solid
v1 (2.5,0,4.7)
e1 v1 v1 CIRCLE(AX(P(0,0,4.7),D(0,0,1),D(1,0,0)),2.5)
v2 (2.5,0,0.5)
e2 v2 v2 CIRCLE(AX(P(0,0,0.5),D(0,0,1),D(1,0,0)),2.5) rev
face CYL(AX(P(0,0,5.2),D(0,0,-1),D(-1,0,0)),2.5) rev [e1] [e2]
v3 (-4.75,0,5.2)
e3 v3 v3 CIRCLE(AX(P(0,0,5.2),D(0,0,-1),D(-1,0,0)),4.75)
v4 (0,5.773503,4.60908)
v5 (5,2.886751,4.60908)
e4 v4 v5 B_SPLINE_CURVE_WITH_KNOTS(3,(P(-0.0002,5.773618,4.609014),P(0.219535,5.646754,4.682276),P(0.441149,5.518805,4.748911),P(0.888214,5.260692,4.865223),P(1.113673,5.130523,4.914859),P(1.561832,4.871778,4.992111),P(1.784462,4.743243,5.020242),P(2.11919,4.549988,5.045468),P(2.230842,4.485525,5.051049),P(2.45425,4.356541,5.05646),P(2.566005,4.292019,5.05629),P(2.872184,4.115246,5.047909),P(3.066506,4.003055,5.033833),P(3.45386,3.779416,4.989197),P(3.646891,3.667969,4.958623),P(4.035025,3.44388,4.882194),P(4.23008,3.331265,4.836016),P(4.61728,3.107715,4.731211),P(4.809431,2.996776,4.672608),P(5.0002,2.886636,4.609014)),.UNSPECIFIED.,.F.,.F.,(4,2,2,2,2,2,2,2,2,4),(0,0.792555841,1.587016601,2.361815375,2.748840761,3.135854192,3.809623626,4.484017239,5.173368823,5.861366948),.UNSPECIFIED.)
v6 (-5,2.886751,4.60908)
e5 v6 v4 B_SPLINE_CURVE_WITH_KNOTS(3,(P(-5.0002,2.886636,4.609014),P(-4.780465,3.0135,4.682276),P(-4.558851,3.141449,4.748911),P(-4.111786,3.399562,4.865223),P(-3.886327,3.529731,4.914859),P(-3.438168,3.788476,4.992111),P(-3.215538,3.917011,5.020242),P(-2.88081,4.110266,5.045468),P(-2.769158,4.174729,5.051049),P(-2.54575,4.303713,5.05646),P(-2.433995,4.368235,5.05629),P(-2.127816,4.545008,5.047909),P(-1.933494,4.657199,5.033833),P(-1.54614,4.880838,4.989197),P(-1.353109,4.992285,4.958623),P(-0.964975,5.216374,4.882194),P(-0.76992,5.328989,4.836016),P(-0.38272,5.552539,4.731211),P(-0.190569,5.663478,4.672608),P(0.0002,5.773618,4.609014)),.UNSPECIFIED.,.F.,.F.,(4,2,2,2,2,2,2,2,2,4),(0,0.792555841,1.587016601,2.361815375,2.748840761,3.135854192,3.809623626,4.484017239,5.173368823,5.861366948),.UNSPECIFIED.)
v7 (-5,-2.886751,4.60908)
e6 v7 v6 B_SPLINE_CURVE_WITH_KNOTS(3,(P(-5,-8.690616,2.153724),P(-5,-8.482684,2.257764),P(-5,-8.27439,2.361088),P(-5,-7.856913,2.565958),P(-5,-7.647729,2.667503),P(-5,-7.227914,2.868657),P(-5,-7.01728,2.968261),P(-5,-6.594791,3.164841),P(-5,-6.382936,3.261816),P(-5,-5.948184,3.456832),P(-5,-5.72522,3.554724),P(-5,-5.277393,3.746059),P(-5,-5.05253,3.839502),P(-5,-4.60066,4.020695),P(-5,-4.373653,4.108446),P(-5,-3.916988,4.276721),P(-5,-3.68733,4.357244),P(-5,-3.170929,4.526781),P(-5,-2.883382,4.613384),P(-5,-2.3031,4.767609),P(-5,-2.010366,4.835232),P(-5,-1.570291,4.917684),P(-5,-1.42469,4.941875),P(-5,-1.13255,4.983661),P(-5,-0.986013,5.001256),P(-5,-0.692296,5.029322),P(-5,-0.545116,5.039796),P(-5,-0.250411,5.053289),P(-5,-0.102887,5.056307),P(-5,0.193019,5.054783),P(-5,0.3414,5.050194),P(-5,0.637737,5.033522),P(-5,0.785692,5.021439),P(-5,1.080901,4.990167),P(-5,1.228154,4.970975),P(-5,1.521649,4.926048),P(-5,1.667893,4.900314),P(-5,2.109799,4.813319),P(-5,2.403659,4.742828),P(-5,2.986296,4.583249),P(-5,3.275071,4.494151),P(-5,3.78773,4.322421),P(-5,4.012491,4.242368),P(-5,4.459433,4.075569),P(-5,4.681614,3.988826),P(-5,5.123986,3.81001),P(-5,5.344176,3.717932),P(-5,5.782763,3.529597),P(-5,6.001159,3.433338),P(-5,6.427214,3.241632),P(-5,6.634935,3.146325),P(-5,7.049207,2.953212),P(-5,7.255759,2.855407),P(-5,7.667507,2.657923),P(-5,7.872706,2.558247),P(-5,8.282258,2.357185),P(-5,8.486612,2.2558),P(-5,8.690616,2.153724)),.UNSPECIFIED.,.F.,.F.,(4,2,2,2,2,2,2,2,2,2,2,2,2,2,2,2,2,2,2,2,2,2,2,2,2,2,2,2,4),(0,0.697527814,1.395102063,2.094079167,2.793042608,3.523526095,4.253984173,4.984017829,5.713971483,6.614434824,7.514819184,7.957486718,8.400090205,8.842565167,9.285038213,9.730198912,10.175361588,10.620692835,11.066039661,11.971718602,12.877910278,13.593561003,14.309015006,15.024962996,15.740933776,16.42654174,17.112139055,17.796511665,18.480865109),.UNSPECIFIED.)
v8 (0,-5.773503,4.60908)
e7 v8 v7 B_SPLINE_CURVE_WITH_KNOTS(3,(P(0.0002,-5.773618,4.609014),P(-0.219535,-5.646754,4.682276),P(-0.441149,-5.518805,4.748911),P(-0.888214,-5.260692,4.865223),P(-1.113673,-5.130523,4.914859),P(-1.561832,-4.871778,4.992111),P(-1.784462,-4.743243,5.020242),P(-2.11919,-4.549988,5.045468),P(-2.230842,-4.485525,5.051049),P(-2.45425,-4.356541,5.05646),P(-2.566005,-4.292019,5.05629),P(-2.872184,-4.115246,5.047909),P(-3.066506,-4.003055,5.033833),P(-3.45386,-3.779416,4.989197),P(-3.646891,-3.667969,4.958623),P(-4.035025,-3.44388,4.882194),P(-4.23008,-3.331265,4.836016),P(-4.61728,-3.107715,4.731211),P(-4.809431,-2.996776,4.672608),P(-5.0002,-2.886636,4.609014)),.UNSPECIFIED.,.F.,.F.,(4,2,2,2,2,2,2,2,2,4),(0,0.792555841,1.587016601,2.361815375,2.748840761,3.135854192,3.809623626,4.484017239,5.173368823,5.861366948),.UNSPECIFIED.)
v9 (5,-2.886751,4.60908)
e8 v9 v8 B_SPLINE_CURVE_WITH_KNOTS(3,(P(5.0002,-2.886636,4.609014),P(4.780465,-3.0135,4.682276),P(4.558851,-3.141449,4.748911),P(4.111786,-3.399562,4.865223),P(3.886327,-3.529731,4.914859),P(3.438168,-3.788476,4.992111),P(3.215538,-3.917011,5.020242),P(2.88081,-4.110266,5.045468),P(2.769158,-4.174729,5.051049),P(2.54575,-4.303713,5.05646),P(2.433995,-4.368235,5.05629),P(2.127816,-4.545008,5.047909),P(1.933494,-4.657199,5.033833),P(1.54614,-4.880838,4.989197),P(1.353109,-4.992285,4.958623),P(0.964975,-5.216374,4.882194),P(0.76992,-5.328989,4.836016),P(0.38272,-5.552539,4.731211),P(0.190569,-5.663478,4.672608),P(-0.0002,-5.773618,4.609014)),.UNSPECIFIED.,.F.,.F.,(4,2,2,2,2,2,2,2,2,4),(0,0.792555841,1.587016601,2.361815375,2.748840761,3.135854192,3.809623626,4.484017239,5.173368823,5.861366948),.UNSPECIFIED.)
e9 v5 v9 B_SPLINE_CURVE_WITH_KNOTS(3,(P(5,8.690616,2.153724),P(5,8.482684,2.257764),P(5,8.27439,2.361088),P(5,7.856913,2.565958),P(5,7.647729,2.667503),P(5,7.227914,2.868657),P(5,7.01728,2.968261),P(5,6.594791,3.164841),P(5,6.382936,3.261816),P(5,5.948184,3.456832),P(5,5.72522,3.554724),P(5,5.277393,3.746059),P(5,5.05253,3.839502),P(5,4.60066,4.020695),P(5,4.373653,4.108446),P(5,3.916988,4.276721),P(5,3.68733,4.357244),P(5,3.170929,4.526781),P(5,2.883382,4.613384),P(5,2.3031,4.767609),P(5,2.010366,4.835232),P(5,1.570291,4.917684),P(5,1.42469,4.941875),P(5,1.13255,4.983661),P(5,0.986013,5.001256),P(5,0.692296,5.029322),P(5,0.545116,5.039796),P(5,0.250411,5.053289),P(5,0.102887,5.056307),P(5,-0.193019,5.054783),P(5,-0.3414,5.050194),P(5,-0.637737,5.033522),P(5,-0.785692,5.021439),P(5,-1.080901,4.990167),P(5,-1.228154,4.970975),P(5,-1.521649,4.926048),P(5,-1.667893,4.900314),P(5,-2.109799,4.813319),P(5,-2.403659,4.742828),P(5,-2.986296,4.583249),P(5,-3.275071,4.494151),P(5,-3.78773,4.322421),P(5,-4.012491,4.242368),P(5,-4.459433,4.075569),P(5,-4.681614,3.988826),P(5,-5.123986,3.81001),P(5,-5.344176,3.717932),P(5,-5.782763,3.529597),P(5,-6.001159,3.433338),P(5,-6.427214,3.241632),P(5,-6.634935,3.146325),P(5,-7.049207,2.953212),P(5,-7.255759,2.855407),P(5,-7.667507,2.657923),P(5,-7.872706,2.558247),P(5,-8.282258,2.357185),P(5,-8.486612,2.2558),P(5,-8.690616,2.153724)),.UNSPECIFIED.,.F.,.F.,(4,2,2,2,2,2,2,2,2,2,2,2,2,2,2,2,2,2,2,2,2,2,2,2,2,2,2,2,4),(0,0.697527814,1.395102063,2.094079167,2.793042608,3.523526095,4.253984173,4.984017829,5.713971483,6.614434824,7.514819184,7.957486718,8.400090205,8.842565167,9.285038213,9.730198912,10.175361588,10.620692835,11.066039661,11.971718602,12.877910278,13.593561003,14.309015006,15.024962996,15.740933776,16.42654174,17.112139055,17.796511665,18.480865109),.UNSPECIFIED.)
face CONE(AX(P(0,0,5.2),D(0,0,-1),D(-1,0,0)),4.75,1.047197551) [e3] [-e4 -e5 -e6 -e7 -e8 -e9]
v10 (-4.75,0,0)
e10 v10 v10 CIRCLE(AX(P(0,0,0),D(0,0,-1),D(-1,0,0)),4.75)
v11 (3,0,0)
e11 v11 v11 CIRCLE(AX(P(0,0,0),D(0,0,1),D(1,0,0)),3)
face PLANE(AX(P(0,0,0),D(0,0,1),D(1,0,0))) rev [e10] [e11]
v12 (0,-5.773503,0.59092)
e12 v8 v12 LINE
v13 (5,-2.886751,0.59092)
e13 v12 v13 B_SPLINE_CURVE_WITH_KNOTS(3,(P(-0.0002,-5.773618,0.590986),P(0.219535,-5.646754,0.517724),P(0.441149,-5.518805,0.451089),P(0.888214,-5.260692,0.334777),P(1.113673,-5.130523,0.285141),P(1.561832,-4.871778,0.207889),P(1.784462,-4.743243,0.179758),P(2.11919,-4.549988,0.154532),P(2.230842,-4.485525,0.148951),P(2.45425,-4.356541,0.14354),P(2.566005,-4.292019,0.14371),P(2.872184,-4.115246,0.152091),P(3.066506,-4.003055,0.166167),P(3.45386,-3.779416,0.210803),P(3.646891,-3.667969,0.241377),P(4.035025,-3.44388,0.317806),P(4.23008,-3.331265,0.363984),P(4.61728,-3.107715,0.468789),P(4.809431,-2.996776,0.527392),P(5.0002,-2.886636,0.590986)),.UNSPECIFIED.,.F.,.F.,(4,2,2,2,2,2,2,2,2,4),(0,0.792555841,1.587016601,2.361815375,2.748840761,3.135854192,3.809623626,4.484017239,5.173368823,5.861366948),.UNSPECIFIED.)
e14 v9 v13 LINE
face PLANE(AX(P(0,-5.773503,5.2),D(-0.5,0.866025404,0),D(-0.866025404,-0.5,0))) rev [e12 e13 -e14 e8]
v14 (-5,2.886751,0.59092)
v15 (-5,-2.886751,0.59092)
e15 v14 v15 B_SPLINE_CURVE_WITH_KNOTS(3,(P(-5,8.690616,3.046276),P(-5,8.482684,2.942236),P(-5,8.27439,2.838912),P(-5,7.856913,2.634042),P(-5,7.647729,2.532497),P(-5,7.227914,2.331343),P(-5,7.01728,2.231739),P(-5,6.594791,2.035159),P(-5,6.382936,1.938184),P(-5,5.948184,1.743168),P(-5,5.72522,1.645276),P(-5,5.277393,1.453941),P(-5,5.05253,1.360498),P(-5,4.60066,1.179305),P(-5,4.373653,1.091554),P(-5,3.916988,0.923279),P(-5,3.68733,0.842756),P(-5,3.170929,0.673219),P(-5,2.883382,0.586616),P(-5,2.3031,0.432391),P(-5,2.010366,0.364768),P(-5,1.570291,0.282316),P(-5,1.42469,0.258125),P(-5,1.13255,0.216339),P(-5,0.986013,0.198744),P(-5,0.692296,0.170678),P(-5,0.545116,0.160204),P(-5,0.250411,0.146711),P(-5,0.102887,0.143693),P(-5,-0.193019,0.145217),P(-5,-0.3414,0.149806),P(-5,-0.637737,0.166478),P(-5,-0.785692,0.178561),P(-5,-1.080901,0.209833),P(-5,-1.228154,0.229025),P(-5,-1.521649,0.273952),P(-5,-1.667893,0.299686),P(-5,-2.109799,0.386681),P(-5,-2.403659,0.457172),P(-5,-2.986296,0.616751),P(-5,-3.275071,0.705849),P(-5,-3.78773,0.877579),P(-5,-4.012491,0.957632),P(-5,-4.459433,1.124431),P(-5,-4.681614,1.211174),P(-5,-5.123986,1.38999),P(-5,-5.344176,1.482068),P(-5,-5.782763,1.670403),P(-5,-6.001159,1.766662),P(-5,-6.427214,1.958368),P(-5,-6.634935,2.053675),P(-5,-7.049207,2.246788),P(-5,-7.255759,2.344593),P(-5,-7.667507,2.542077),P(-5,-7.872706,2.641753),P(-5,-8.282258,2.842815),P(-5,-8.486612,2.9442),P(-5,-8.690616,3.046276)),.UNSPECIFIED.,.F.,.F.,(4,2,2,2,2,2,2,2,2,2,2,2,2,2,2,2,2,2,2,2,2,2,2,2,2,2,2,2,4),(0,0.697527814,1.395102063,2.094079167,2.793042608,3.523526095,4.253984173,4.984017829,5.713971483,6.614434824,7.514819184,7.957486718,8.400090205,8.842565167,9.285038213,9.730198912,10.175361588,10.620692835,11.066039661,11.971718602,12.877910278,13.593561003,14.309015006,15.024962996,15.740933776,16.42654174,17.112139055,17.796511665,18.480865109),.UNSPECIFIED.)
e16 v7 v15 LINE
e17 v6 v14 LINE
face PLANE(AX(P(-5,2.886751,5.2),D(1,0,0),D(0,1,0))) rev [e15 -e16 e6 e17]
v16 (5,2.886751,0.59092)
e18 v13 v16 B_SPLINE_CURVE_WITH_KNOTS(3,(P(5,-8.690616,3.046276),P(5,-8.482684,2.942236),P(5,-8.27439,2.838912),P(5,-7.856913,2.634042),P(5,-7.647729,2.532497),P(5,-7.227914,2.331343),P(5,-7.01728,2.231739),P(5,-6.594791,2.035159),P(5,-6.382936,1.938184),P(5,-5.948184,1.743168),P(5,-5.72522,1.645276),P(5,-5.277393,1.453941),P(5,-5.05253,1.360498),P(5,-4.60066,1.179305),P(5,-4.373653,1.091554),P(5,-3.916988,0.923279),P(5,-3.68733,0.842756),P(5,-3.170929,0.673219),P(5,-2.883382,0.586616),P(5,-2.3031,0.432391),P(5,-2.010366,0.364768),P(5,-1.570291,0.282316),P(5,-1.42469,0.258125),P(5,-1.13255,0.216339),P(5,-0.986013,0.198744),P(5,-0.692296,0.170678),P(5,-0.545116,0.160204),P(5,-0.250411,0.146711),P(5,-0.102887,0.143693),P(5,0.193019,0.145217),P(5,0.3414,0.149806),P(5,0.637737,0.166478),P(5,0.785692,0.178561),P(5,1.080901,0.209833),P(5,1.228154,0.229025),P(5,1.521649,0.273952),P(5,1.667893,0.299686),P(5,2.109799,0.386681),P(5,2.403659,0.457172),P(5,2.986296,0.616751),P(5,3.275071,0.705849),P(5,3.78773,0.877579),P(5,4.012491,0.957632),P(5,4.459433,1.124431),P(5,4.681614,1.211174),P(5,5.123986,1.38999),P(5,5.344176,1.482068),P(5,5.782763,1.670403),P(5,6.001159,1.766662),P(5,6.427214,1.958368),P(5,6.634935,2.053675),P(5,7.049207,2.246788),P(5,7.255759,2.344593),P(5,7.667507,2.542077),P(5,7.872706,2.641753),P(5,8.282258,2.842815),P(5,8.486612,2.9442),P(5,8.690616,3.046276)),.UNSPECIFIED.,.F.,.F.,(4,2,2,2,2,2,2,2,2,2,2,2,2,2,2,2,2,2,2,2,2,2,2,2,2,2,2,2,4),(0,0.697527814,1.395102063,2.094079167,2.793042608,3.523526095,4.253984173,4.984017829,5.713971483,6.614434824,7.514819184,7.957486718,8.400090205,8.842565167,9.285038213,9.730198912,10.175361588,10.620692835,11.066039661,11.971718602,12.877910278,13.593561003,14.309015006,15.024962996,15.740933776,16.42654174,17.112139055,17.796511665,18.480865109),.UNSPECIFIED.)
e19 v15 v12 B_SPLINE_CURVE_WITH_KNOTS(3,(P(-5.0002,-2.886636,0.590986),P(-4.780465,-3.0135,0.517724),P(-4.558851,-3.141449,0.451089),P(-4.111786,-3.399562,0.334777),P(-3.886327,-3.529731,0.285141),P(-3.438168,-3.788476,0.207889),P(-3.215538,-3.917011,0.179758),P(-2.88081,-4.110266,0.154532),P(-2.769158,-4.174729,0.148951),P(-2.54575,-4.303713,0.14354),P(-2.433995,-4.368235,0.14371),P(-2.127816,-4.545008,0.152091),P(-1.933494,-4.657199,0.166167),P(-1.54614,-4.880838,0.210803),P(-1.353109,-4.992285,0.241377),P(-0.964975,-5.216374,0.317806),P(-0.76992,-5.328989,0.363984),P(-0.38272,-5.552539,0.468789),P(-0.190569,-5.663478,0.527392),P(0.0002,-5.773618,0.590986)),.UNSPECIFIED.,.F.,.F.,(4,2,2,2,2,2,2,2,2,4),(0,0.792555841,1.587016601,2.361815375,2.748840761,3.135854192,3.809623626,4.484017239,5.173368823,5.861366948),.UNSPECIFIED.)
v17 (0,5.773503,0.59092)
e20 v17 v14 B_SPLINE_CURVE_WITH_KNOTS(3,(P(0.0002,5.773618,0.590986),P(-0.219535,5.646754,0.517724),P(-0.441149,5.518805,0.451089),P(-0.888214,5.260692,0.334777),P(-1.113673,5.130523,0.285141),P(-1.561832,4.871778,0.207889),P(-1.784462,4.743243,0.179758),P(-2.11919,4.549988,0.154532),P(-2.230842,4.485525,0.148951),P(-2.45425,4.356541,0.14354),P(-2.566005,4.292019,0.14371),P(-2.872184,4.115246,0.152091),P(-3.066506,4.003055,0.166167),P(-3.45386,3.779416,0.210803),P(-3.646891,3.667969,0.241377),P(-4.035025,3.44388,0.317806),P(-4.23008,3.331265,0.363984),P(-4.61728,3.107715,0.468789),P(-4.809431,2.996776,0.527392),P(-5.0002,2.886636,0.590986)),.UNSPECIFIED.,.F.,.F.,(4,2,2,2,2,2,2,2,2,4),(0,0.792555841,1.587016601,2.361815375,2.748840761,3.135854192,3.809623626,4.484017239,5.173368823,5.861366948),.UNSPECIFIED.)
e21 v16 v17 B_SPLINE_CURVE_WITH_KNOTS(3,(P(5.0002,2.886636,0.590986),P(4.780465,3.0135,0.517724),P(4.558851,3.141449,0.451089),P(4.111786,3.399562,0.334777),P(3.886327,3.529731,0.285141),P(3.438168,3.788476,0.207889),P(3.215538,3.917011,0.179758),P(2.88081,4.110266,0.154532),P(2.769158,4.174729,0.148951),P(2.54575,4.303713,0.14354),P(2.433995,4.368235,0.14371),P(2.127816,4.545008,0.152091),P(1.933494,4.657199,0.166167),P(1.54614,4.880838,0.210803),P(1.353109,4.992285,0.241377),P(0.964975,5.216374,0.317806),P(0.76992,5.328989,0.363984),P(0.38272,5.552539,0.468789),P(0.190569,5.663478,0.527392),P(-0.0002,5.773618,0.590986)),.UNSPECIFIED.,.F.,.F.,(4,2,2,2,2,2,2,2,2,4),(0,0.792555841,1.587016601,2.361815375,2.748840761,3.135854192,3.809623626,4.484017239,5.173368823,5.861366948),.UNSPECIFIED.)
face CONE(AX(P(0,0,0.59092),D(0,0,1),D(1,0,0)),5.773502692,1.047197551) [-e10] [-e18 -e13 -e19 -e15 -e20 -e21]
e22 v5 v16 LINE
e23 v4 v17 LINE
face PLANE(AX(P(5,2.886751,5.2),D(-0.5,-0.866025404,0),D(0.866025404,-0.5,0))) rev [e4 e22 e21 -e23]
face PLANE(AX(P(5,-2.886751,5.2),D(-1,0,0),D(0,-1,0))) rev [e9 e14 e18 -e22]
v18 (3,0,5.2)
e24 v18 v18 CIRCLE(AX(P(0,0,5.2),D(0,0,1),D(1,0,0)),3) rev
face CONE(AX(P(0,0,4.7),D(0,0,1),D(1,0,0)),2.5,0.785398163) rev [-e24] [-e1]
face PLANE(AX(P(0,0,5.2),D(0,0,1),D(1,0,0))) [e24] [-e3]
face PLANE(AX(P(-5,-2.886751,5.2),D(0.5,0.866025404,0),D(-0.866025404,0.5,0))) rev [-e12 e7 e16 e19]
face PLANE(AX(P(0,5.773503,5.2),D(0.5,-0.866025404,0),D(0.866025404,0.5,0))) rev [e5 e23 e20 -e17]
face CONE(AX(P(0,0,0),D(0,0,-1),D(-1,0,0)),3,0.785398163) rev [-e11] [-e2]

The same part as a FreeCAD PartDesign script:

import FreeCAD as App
import Part
import Sketcher
from FreeCAD import Vector
Q = App.Units.Quantity


def edges_at(feature, points):
    """Names of the edges that pass closest to the given points."""
    edges = feature.Shape.Edges
    near = lambda p: min(range(len(edges)), key=lambda i: edges[i].distToShape(Part.Vertex(*p))[0])
    return sorted({f"Edge{near(p) + 1}" for p in points})


def add_polygon(sketch, points):
    """Adds a closed chain of lines whose ends are joined by coincident constraints."""
    first, n = sketch.GeometryCount, len(points)
    for a, b in zip(points, points[1:] + points[:1]):
        sketch.addGeometry(Part.LineSegment(App.Vector(*a, 0), App.Vector(*b, 0)), False)
    for i in range(n):
        sketch.addConstraint(Sketcher.Constraint("Coincident", first + i, 2, first + (i + 1) % n, 1))

doc = App.newDocument("Part")
params = doc.addObject("Spreadsheet::Sheet", "Params")
for row, (alias, value) in enumerate([
    ("sketch1_diameter", "5 mm"),
    ("pad1_length", "5.2 mm"),
    ("groove_angle", "360 deg"),
    ("chamfer_size", "0.5 mm"),
], start=1):
    params.set(f"A{row}", alias)
    params.set(f"B{row}", "=" + value)
    params.setAlias(f"B{row}", alias)

body = doc.addObject("PartDesign::Body", "Body")

# Sketch on XY plane
sketch1 = body.newObject("Sketcher::SketchObject", "Sketch")
sketch1.AttachmentSupport = (doc.getObject("XY_Plane"), [""])
sketch1.MapMode = "FlatFace"
add_polygon(sketch1, [(0, 5.8), (-5, 2.9), (-5, -2.9), (0, -5.8), (5, -2.9), (5, 2.9)])  # lines 0-5
sketch1.addGeometry(Part.Circle(Vector(0, 0, 0), Vector(0, 0, 1), 2.5), False)  # 6
sketch1.addConstraint(Sketcher.Constraint("Vertical", 1))
sketch1.addConstraint(Sketcher.Constraint("Vertical", 4))
sketch1.addConstraint(Sketcher.Constraint("Coincident", 6, 3, -1, 1))
sketch1.addConstraint(Sketcher.Constraint("Symmetric", 0, 2, 3, 2, -1, 1))
sketch1.addConstraint(Sketcher.Constraint("Symmetric", 2, 2, 5, 2, -1, 1))
sketch1.addConstraint(Sketcher.Constraint("PointOnObject", 2, 2, -2))
sketch1.addConstraint(Sketcher.Constraint("Parallel", 2, 5))
sketch1.addConstraint(Sketcher.Constraint("Horizontal", 1, 2, 3, 2))
sketch1.addConstraint(Sketcher.Constraint("Diameter", 6, Q("5 mm")))
sketch1.addConstraint(Sketcher.Constraint("Angle", 0, Q("-150 deg")))
sketch1.addConstraint(Sketcher.Constraint("DistanceX", 0, 2, -1, 1, Q("5 mm")))
sketch1.addConstraint(Sketcher.Constraint("DistanceY", 1, 2, 1, 1, Q("5.773503 mm")))
sketch1.setExpression("Constraints[14]", "Params.sketch1_diameter")
pad1 = body.newObject("PartDesign::Pad", "Pad")
pad1.Profile = sketch1
pad1.setExpression("Length", "Params.pad1_length")

# Sketch on YZ plane
sketch2 = body.newObject("Sketcher::SketchObject", "Sketch001")
sketch2.AttachmentSupport = (doc.getObject("YZ_Plane"), [""])
sketch2.MapMode = "FlatFace"
add_polygon(sketch2, [(5.8, 0), (5.8, 0.6), (4.8, 0)])  # lines 0-2
add_polygon(sketch2, [(5.8, 5.2), (4.8, 5.2), (5.8, 4.6)])  # lines 3-5
sketch2.addConstraint(Sketcher.Constraint("Vertical", 0))
sketch2.addConstraint(Sketcher.Constraint("Horizontal", 2))
sketch2.addConstraint(Sketcher.Constraint("Horizontal", 3))
sketch2.addConstraint(Sketcher.Constraint("Vertical", 5))
sketch2.addConstraint(Sketcher.Constraint("PointOnObject", 1, 2, -1))
sketch2.addConstraint(Sketcher.Constraint("Vertical", 1, 2, 3, 2))
sketch2.addConstraint(Sketcher.Constraint("Vertical", 2, 2, 4, 2))
sketch2.addConstraint(Sketcher.Constraint("Equal", 0, 5))
sketch2.addConstraint(Sketcher.Constraint("Angle", 1, Q("-150 deg")))
sketch2.addConstraint(Sketcher.Constraint("DistanceY", -1, 1, 3, 2, Q("5.2 mm")))
sketch2.addConstraint(Sketcher.Constraint("DistanceX", -1, 1, 1, 2, Q("4.75 mm")))
sketch2.addConstraint(Sketcher.Constraint("DistanceY", 0, 1, 0, 2, Q("0.59092 mm")))
groove = body.newObject("PartDesign::Groove", "Groove")
groove.Profile = sketch2
groove.ReferenceAxis = (sketch2, ["V_Axis"])
groove.setExpression("Angle", "Params.groove_angle")
doc.recompute()

chamfer = body.newObject("PartDesign::Chamfer", "Chamfer")
chamfer.Base = (groove, edges_at(groove, [(-2.5, 0, 0), (-2.5, 0, 5.2)]))
chamfer.setExpression("Size", "Params.chamfer_size")

doc.recompute()
